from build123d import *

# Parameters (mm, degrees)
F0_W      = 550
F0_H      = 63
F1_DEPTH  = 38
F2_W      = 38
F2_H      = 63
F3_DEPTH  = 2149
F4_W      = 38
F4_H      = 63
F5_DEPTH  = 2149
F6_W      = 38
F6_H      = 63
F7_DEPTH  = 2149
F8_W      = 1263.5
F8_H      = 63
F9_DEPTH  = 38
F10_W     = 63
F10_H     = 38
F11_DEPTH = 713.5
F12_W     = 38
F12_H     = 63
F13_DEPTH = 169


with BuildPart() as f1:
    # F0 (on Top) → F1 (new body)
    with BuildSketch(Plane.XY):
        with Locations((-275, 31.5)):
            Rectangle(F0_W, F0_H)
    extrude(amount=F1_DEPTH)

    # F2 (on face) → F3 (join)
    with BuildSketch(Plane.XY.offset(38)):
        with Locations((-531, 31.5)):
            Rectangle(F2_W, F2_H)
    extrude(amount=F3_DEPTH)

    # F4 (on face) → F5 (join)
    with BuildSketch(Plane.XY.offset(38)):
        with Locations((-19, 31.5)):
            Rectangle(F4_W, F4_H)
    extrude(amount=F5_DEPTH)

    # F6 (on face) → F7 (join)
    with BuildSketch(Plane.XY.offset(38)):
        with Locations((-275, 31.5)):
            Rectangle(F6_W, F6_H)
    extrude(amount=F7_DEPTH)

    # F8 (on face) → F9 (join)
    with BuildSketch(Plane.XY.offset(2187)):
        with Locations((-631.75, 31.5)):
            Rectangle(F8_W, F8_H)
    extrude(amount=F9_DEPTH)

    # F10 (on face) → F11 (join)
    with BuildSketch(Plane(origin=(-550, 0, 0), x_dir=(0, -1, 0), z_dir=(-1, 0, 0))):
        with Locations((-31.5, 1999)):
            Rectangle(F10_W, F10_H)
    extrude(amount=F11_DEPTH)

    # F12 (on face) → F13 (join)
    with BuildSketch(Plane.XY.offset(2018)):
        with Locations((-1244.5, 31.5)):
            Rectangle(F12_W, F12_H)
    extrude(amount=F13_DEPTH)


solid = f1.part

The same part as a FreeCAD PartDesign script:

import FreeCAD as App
import Part
import Sketcher
from FreeCAD import Vector


def add_polygon(sketch, points):
    """Adds a closed chain of lines whose ends are joined by coincident constraints."""
    first, n = sketch.GeometryCount, len(points)
    for a, b in zip(points, points[1:] + points[:1]):
        sketch.addGeometry(Part.LineSegment(App.Vector(*a, 0), App.Vector(*b, 0)), False)
    for i in range(n):
        sketch.addConstraint(Sketcher.Constraint("Coincident", first + i, 2, first + (i + 1) % n, 1))

doc = App.newDocument("Part")
params = doc.addObject("Spreadsheet::Sheet", "Params")
for row, (alias, value) in enumerate([
    ("sketch1_width", "550 mm"),
    ("sketch1_height", "63 mm"),
    ("pad1_length", "38 mm"),
    ("sketch2_width", "38 mm"),
    ("sketch2_height", "63 mm"),
    ("pad2_length", "2149 mm"),
    ("sketch3_width", "38 mm"),
    ("sketch3_height", "63 mm"),
    ("pad3_length", "2149 mm"),
    ("sketch4_width", "38 mm"),
    ("sketch4_height", "63 mm"),
    ("pad4_length", "2149 mm"),
    ("sketch5_height", "63 mm"),
    ("sketch5_width", "1263.5 mm"),
    ("pad5_length", "38 mm"),
    ("sketch6_width", "63 mm"),
    ("sketch6_height", "38 mm"),
    ("pad6_length", "713.5 mm"),
    ("sketch7_width", "38 mm"),
    ("sketch7_height", "63 mm"),
    ("pad7_length", "169 mm"),
], start=1):
    params.set(f"A{row}", alias)
    params.set(f"B{row}", "=" + value)
    params.setAlias(f"B{row}", alias)

body = doc.addObject("PartDesign::Body", "Body")

# Sketch on XY plane
sketch1 = body.newObject("Sketcher::SketchObject", "Sketch")
sketch1.AttachmentSupport = (doc.getObject("XY_Plane"), [""])
sketch1.MapMode = "FlatFace"
add_polygon(sketch1, [(-550, 63), (-550, 0), (0, 0), (0, 63)])  # lines 0-3
sketch1.addConstraint(Sketcher.Constraint("Vertical", 0))
sketch1.addConstraint(Sketcher.Constraint("Horizontal", 1))
sketch1.addConstraint(Sketcher.Constraint("Vertical", 2))
sketch1.addConstraint(Sketcher.Constraint("Horizontal", 3))
sketch1.addConstraint(Sketcher.Constraint("Coincident", 1, 2, -1, 1))
sketch1.addConstraint(Sketcher.Constraint("DistanceX", 1, 1, 1, 2, 550.0))
sketch1.addConstraint(Sketcher.Constraint("DistanceY", 0, 2, 0, 1, 63.0))
sketch1.setExpression("Constraints[9]", "Params.sketch1_width")
sketch1.setExpression("Constraints[10]", "Params.sketch1_height")
pad1 = body.newObject("PartDesign::Pad", "Pad")
pad1.Profile = sketch1
pad1.setExpression("Length", "Params.pad1_length")

# Sketch on XY plane
sketch2 = body.newObject("Sketcher::SketchObject", "Sketch001")
sketch2.AttachmentSupport = (doc.getObject("XY_Plane"), [""])
sketch2.MapMode = "FlatFace"
sketch2.AttachmentOffset = App.Placement(Vector(0, 0, 38), App.Rotation())
add_polygon(sketch2, [(-550, 63), (-550, 0), (-512, 0), (-512, 63)])  # lines 0-3
sketch2.addConstraint(Sketcher.Constraint("Vertical", 0))
sketch2.addConstraint(Sketcher.Constraint("Horizontal", 1))
sketch2.addConstraint(Sketcher.Constraint("Vertical", 2))
sketch2.addConstraint(Sketcher.Constraint("Horizontal", 3))
sketch2.addConstraint(Sketcher.Constraint("PointOnObject", 0, 2, -1))
sketch2.addConstraint(Sketcher.Constraint("DistanceX", 1, 1, 1, 2, 38.0))
sketch2.addConstraint(Sketcher.Constraint("DistanceY", 0, 2, 0, 1, 63.0))
sketch2.addConstraint(Sketcher.Constraint("DistanceX", 0, 2, -1, 1, 550.0))
sketch2.setExpression("Constraints[9]", "Params.sketch2_width")
sketch2.setExpression("Constraints[10]", "Params.sketch2_height")
pad2 = body.newObject("PartDesign::Pad", "Pad001")
pad2.Profile = sketch2
pad2.setExpression("Length", "Params.pad2_length")

# Sketch on XY plane
sketch3 = body.newObject("Sketcher::SketchObject", "Sketch002")
sketch3.AttachmentSupport = (doc.getObject("XY_Plane"), [""])
sketch3.MapMode = "FlatFace"
sketch3.AttachmentOffset = App.Placement(Vector(0, 0, 38), App.Rotation())
add_polygon(sketch3, [(-38, 63), (-38, 0), (0, 0), (0, 63)])  # lines 0-3
sketch3.addConstraint(Sketcher.Constraint("Vertical", 0))
sketch3.addConstraint(Sketcher.Constraint("Horizontal", 1))
sketch3.addConstraint(Sketcher.Constraint("Vertical", 2))
sketch3.addConstraint(Sketcher.Constraint("Horizontal", 3))
sketch3.addConstraint(Sketcher.Constraint("Coincident", 1, 2, -1, 1))
sketch3.addConstraint(Sketcher.Constraint("DistanceX", 1, 1, 1, 2, 38.0))
sketch3.addConstraint(Sketcher.Constraint("DistanceY", 0, 2, 0, 1, 63.0))
sketch3.setExpression("Constraints[9]", "Params.sketch3_width")
sketch3.setExpression("Constraints[10]", "Params.sketch3_height")
pad3 = body.newObject("PartDesign::Pad", "Pad002")
pad3.Profile = sketch3
pad3.setExpression("Length", "Params.pad3_length")

# Sketch on XY plane
sketch4 = body.newObject("Sketcher::SketchObject", "Sketch003")
sketch4.AttachmentSupport = (doc.getObject("XY_Plane"), [""])
sketch4.MapMode = "FlatFace"
sketch4.AttachmentOffset = App.Placement(Vector(0, 0, 38), App.Rotation())
add_polygon(sketch4, [(-294, 63), (-294, 0), (-256, 0), (-256, 63)])  # lines 0-3
sketch4.addConstraint(Sketcher.Constraint("Vertical", 0))
sketch4.addConstraint(Sketcher.Constraint("Horizontal", 1))
sketch4.addConstraint(Sketcher.Constraint("Vertical", 2))
sketch4.addConstraint(Sketcher.Constraint("Horizontal", 3))
sketch4.addConstraint(Sketcher.Constraint("PointOnObject", 0, 2, -1))
sketch4.addConstraint(Sketcher.Constraint("DistanceX", 1, 1, 1, 2, 38.0))
sketch4.addConstraint(Sketcher.Constraint("DistanceY", 0, 2, 0, 1, 63.0))
sketch4.addConstraint(Sketcher.Constraint("DistanceX", 0, 2, -1, 1, 294.0))
sketch4.setExpression("Constraints[9]", "Params.sketch4_width")
sketch4.setExpression("Constraints[10]", "Params.sketch4_height")
pad4 = body.newObject("PartDesign::Pad", "Pad003")
pad4.Profile = sketch4
pad4.setExpression("Length", "Params.pad4_length")

# Sketch on XY plane
sketch5 = body.newObject("Sketcher::SketchObject", "Sketch004")
sketch5.AttachmentSupport = (doc.getObject("XY_Plane"), [""])
sketch5.MapMode = "FlatFace"
sketch5.AttachmentOffset = App.Placement(Vector(0, 0, 2187), App.Rotation())
add_polygon(sketch5, [(-1264, 63), (-1264, 0), (0, 0), (0, 63)])  # lines 0-3
sketch5.addConstraint(Sketcher.Constraint("Vertical", 0))
sketch5.addConstraint(Sketcher.Constraint("Horizontal", 1))
sketch5.addConstraint(Sketcher.Constraint("Vertical", 2))
sketch5.addConstraint(Sketcher.Constraint("Horizontal", 3))
sketch5.addConstraint(Sketcher.Constraint("Coincident", 1, 2, -1, 1))
sketch5.addConstraint(Sketcher.Constraint("DistanceY", 0, 2, 0, 1, 63.0))
sketch5.addConstraint(Sketcher.Constraint("DistanceX", 1, 1, 1, 2, 1263.5))
sketch5.setExpression("Constraints[9]", "Params.sketch5_height")
sketch5.setExpression("Constraints[10]", "Params.sketch5_width")
pad5 = body.newObject("PartDesign::Pad", "Pad004")
pad5.Profile = sketch5
pad5.setExpression("Length", "Params.pad5_length")

# Sketch on YZ plane
sketch6 = body.newObject("Sketcher::SketchObject", "Sketch005")
sketch6.AttachmentSupport = (doc.getObject("YZ_Plane"), [""])
sketch6.MapMode = "FlatFace"
sketch6.AttachmentOffset = App.Placement(Vector(0, 0, -550), App.Rotation())
add_polygon(sketch6, [(63, 2018), (63, 1980), (0, 1980), (0, 2018)])  # lines 0-3
sketch6.addConstraint(Sketcher.Constraint("Vertical", 0))
sketch6.addConstraint(Sketcher.Constraint("Horizontal", 1))
sketch6.addConstraint(Sketcher.Constraint("Vertical", 2))
sketch6.addConstraint(Sketcher.Constraint("Horizontal", 3))
sketch6.addConstraint(Sketcher.Constraint("PointOnObject", 1, 2, -2))
sketch6.addConstraint(Sketcher.Constraint("DistanceX", 1, 2, 1, 1, 63.0))
sketch6.addConstraint(Sketcher.Constraint("DistanceY", 0, 2, 0, 1, 38.0))
sketch6.addConstraint(Sketcher.Constraint("DistanceY", -1, 1, 0, 2, 1980.0))
sketch6.setExpression("Constraints[9]", "Params.sketch6_width")
sketch6.setExpression("Constraints[10]", "Params.sketch6_height")
pad6 = body.newObject("PartDesign::Pad", "Pad005")
pad6.Profile = sketch6
pad6.setExpression("Length", "Params.pad6_length")
pad6.Reversed = True

# Sketch on XY plane
sketch7 = body.newObject("Sketcher::SketchObject", "Sketch006")
sketch7.AttachmentSupport = (doc.getObject("XY_Plane"), [""])
sketch7.MapMode = "FlatFace"
sketch7.AttachmentOffset = App.Placement(Vector(0, 0, 2018), App.Rotation())
add_polygon(sketch7, [(-1264, 63), (-1264, 0), (-1226, 0), (-1226, 63)])  # lines 0-3
sketch7.addConstraint(Sketcher.Constraint("Vertical", 0))
sketch7.addConstraint(Sketcher.Constraint("Horizontal", 1))
sketch7.addConstraint(Sketcher.Constraint("Vertical", 2))
sketch7.addConstraint(Sketcher.Constraint("Horizontal", 3))
sketch7.addConstraint(Sketcher.Constraint("PointOnObject", 0, 2, -1))
sketch7.addConstraint(Sketcher.Constraint("DistanceX", 1, 1, 1, 2, 38.0))
sketch7.addConstraint(Sketcher.Constraint("DistanceY", 0, 2, 0, 1, 63.0))
sketch7.addConstraint(Sketcher.Constraint("DistanceX", 0, 2, -1, 1, 1263.5))
sketch7.setExpression("Constraints[9]", "Params.sketch7_width")
sketch7.setExpression("Constraints[10]", "Params.sketch7_height")
pad7 = body.newObject("PartDesign::Pad", "Pad006")
pad7.Profile = sketch7
pad7.setExpression("Length", "Params.pad7_length")

doc.recompute()
